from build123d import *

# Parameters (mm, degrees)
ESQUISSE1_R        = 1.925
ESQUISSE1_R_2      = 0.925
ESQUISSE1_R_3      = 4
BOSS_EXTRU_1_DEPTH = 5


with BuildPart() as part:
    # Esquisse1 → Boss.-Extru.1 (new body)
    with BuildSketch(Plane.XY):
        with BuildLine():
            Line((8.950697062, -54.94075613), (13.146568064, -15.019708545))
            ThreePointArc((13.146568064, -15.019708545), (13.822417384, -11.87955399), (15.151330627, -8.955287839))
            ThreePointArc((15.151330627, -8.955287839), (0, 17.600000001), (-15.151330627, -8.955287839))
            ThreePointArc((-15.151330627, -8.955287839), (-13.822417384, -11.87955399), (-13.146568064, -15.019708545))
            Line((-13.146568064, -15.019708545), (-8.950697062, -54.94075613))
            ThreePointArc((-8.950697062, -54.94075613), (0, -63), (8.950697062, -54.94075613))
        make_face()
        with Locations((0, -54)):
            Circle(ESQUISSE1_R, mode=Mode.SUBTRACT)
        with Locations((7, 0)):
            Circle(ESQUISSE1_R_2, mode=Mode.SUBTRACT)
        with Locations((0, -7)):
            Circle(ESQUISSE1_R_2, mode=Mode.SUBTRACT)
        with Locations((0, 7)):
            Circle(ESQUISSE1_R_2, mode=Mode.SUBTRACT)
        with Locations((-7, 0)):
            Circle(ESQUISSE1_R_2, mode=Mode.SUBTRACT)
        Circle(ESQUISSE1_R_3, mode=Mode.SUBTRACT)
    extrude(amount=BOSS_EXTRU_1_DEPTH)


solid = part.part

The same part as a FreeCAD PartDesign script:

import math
import FreeCAD as App
import Part
import Sketcher
Q = App.Units.Quantity

doc = App.newDocument("Part")
params = doc.addObject("Spreadsheet::Sheet", "Params")
for row, (alias, value) in enumerate([
    ("sketch1_diameter", "8 mm"),
    ("sketch1_radius", "15 mm"),
    ("sketch1_radius2", "9 mm"),
    ("sketch1_radius3", "17.6 mm"),
    ("sketch1_diameter2", "3.85 mm"),
    ("pad1_length", "5 mm"),
], start=1):
    params.set(f"A{row}", alias)
    params.set(f"B{row}", "=" + value)
    params.setAlias(f"B{row}", alias)

body = doc.addObject("PartDesign::Body", "Body")

# Sketch on XY plane
sketch1 = body.newObject("Sketcher::SketchObject", "Sketch")
sketch1.AttachmentSupport = (doc.getObject("XY_Plane"), [""])
sketch1.MapMode = "FlatFace"
sketch1.addGeometry([
    Part.LineSegment(App.Vector(9, -54.9, 0), App.Vector(13.1, -15, 0)),  # 0
    Part.ArcOfCircle(Part.Circle(App.Vector(28.1, -16.6, 0), App.Vector(0, 0, 1), 15), math.radians(149), math.radians(174)),  # 1
    Part.ArcOfCircle(Part.Circle(App.Vector(0, 0, 0), App.Vector(0, 0, 1), 17.6), math.radians(-31), math.radians(211)),  # 2
    Part.ArcOfCircle(Part.Circle(App.Vector(-28.1, -16.6, 0), App.Vector(0, 0, 1), 15), math.radians(6), math.radians(31)),  # 3
    Part.LineSegment(App.Vector(-13.1, -15, 0), App.Vector(-9, -54.9, 0)),  # 4
    Part.ArcOfCircle(Part.Circle(App.Vector(0, -54, 0), App.Vector(0, 0, 1), 9), math.radians(-174), math.radians(-6)),  # 5
    Part.Circle(App.Vector(0, -54, 0), App.Vector(0, 0, 1), 1.9),  # 6
    Part.Circle(App.Vector(-7, 0, 0), App.Vector(0, 0, 1), 0.9),  # 7
    Part.Circle(App.Vector(0, -7, 0), App.Vector(0, 0, 1), 0.9),  # 8
    Part.Circle(App.Vector(0, 0, 0), App.Vector(0, 0, 1), 4),  # 9
    Part.Circle(App.Vector(0, 7, 0), App.Vector(0, 0, 1), 0.9),  # 10
    Part.Circle(App.Vector(7, 0, 0), App.Vector(0, 0, 1), 0.9),  # 11
], False)
sketch1.addConstraint([
    Sketcher.Constraint("Tangent", 0, 2, 1, 2),
    Sketcher.Constraint("Tangent", 1, 1, 2, 1),
    Sketcher.Constraint("Tangent", 2, 2, 3, 2),
    Sketcher.Constraint("Tangent", 3, 1, 4, 1),
    Sketcher.Constraint("Tangent", 4, 2, 5, 1),
    Sketcher.Constraint("Tangent", 5, 2, 0, 1),
    Sketcher.Constraint("Coincident", 2, 3, -1, 1),
    Sketcher.Constraint("Coincident", 9, 3, -1, 1),
    Sketcher.Constraint("Coincident", 6, 3, 5, 3),
    Sketcher.Constraint("Equal", 1, 3),
    Sketcher.Constraint("Equal", 7, 8),
    Sketcher.Constraint("Equal", 8, 10),
    Sketcher.Constraint("Equal", 10, 11),
    Sketcher.Constraint("Symmetric", 8, 3, 10, 3, -1, 1),
    Sketcher.Constraint("Symmetric", 7, 3, 11, 3, -1, 1),
    Sketcher.Constraint("Symmetric", 0, 2, 3, 1, -2),
    Sketcher.Constraint("PointOnObject", 7, 3, -1),
    Sketcher.Constraint("PointOnObject", 8, 3, -2),
    Sketcher.Constraint("Diameter", 9, 8.0),
    Sketcher.Constraint("Radius", 1, 15.0),
    Sketcher.Constraint("Radius", 5, 9.0),
    Sketcher.Constraint("Radius", 2, 17.6),
    Sketcher.Constraint("Diameter", 6, 3.85),
    Sketcher.Constraint("Diameter", 7, 1.85),
    Sketcher.Constraint("Angle", 0, Q("84 deg")),
    Sketcher.Constraint("DistanceY", 5, 3, -1, 1, 54.0),
    Sketcher.Constraint("DistanceX", 7, 3, -1, 1, 7.0),
    Sketcher.Constraint("DistanceY", 8, 3, -1, 1, 7.0),
])
sketch1.setExpression("Constraints[18]", "Params.sketch1_diameter")
sketch1.setExpression("Constraints[19]", "Params.sketch1_radius")
sketch1.setExpression("Constraints[20]", "Params.sketch1_radius2")
sketch1.setExpression("Constraints[21]", "Params.sketch1_radius3")
sketch1.setExpression("Constraints[22]", "Params.sketch1_diameter2")
pad1 = body.newObject("PartDesign::Pad", "Pad")
pad1.Profile = sketch1
pad1.setExpression("Length", "Params.pad1_length")

doc.recompute()
